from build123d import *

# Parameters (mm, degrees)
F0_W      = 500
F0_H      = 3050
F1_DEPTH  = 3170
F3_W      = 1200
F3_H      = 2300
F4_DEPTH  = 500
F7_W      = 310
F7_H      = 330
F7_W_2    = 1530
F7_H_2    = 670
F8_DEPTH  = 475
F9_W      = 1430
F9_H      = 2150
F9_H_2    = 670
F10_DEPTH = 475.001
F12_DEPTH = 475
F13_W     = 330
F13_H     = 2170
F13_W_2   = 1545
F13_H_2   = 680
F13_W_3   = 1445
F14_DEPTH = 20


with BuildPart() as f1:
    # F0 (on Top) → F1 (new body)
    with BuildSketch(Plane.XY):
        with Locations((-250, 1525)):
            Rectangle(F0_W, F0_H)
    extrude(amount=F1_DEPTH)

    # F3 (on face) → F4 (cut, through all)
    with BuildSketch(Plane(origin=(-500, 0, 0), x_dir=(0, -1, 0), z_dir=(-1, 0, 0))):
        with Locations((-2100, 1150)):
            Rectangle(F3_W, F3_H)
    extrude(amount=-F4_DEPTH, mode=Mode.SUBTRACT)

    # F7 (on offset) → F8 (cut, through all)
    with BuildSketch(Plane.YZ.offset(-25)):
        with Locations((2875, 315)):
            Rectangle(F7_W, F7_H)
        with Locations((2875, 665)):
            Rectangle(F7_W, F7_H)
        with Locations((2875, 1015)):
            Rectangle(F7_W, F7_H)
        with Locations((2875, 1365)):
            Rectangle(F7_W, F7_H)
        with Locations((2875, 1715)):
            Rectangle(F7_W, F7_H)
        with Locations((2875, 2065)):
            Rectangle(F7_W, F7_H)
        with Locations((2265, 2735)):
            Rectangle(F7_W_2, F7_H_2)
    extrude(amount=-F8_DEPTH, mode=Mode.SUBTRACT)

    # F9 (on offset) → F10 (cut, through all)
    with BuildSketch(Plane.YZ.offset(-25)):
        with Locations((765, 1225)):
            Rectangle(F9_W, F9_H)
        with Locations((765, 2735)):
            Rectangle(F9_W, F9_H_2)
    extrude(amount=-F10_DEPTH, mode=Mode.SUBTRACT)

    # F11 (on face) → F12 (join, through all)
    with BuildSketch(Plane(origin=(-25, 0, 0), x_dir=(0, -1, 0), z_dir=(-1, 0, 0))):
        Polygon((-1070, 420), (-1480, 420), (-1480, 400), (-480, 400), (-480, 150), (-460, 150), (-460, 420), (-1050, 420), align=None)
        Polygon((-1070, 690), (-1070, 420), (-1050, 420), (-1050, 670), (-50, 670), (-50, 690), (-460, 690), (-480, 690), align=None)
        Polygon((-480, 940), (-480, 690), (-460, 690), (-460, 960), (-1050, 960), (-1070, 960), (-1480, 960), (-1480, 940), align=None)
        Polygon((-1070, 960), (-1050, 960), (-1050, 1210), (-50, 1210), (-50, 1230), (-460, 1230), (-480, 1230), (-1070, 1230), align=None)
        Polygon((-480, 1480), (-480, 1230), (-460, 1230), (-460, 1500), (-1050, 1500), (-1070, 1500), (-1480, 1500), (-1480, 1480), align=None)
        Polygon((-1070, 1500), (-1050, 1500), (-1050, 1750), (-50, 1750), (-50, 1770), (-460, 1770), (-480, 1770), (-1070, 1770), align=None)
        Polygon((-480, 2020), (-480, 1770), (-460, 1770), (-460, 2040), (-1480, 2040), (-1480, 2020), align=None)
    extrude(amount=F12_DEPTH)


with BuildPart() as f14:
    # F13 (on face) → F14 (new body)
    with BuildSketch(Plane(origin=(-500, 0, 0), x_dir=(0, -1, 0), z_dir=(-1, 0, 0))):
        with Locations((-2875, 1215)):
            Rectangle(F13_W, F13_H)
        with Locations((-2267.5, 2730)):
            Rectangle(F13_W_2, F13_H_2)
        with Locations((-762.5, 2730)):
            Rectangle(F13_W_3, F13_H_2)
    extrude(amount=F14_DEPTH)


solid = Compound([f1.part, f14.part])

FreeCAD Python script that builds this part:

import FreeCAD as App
import Part
import Sketcher


def add_polygon(sketch, points):
    """Adds a closed chain of lines whose ends are joined by coincident constraints."""
    first, n = sketch.GeometryCount, len(points)
    for a, b in zip(points, points[1:] + points[:1]):
        sketch.addGeometry(Part.LineSegment(App.Vector(*a, 0), App.Vector(*b, 0)), False)
    for i in range(n):
        sketch.addConstraint(Sketcher.Constraint("Coincident", first + i, 2, first + (i + 1) % n, 1))

doc = App.newDocument("Part")
body = doc.addObject("PartDesign::Body", "Body")

# Sketch on XY plane
sketch1 = doc.addObject("Sketcher::SketchObject", "Sketch")
body.addObject(sketch1)
sketch1.AttachmentSupport = (doc.XY_Plane, [""])
sketch1.MapMode = "FlatFace"
add_polygon(sketch1, [(-500, 3050), (-500, 0), (0, 0), (0, 3050)])  # lines 0-3
sketch1.addConstraint([
    Sketcher.Constraint("Vertical", 0),
    Sketcher.Constraint("Horizontal", 1),
    Sketcher.Constraint("Vertical", 2),
    Sketcher.Constraint("Horizontal", 3),
    Sketcher.Constraint("Coincident", 1, 2, -1, 1),
    Sketcher.Constraint("DistanceX", 1, 1, 1, 2, 500.0),
    Sketcher.Constraint("DistanceY", 0, 2, 0, 1, 3050.0),
])
pad1 = doc.addObject("PartDesign::Pad", "Pad")
body.addObject(pad1)
pad1.Profile = sketch1
pad1.Length = 3170

# Sketch on YZ plane
sketch2 = doc.addObject("Sketcher::SketchObject", "Sketch001")
body.addObject(sketch2)
sketch2.AttachmentSupport = (doc.YZ_Plane, [""])
sketch2.MapMode = "FlatFace"
sketch2.AttachmentOffset = App.Placement(App.Vector(0, 0, -500), App.Rotation())
add_polygon(sketch2, [(2700, 2300), (2700, 0), (1500, 0), (1500, 2300)])  # lines 0-3
sketch2.addConstraint([
    Sketcher.Constraint("Vertical", 0),
    Sketcher.Constraint("Horizontal", 1),
    Sketcher.Constraint("Vertical", 2),
    Sketcher.Constraint("Horizontal", 3),
    Sketcher.Constraint("PointOnObject", 0, 2, -1),
    Sketcher.Constraint("DistanceX", 1, 2, 1, 1, 1200.0),
    Sketcher.Constraint("DistanceY", 0, 2, 0, 1, 2300.0),
    Sketcher.Constraint("DistanceX", -1, 1, 0, 2, 2700.0),
])
pocket1 = doc.addObject("PartDesign::Pocket", "Pocket")
body.addObject(pocket1)
pocket1.Profile = sketch2
pocket1.Type = "ThroughAll"
pocket1.Reversed = True

# Sketch on YZ plane
sketch3 = doc.addObject("Sketcher::SketchObject", "Sketch002")
body.addObject(sketch3)
sketch3.AttachmentSupport = (doc.YZ_Plane, [""])
sketch3.MapMode = "FlatFace"
sketch3.AttachmentOffset = App.Placement(App.Vector(0, 0, -25), App.Rotation())
add_polygon(sketch3, [(2720, 480), (2720, 150), (3030, 150), (3030, 480)])  # lines 0-3
add_polygon(sketch3, [(2720, 830), (2720, 500), (3030, 500), (3030, 830)])  # lines 4-7
add_polygon(sketch3, [(2720, 1180), (2720, 850), (3030, 850), (3030, 1180)])  # lines 8-11
add_polygon(sketch3, [(2720, 1530), (2720, 1200), (3030, 1200), (3030, 1530)])  # lines 12-15
add_polygon(sketch3, [(2720, 1880), (2720, 1550), (3030, 1550), (3030, 1880)])  # lines 16-19
add_polygon(sketch3, [(2720, 2230), (2720, 1900), (3030, 1900), (3030, 2230)])  # lines 20-23
add_polygon(sketch3, [(1500, 3070), (1500, 2400), (3030, 2400), (3030, 3070)])  # lines 24-27
sketch3.addConstraint([
    Sketcher.Constraint("Vertical", 0),
    Sketcher.Constraint("Horizontal", 1),
    Sketcher.Constraint("Vertical", 2),
    Sketcher.Constraint("Horizontal", 3),
    Sketcher.Constraint("Vertical", 4),
    Sketcher.Constraint("Horizontal", 5),
    Sketcher.Constraint("Vertical", 6),
    Sketcher.Constraint("Horizontal", 7),
    Sketcher.Constraint("Vertical", 8),
    Sketcher.Constraint("Horizontal", 9),
    Sketcher.Constraint("Vertical", 10),
    Sketcher.Constraint("Horizontal", 11),
    Sketcher.Constraint("Vertical", 12),
    Sketcher.Constraint("Horizontal", 13),
    Sketcher.Constraint("Vertical", 14),
    Sketcher.Constraint("Horizontal", 15),
    Sketcher.Constraint("Vertical", 16),
    Sketcher.Constraint("Horizontal", 17),
    Sketcher.Constraint("Vertical", 18),
    Sketcher.Constraint("Horizontal", 19),
    Sketcher.Constraint("Vertical", 20),
    Sketcher.Constraint("Horizontal", 21),
    Sketcher.Constraint("Vertical", 22),
    Sketcher.Constraint("Horizontal", 23),
    Sketcher.Constraint("Vertical", 24),
    Sketcher.Constraint("Horizontal", 25),
    Sketcher.Constraint("Vertical", 26),
    Sketcher.Constraint("Horizontal", 27),
    Sketcher.Constraint("Vertical", 3, 2, 4, 2),
    Sketcher.Constraint("Vertical", 2, 2, 5, 2),
    Sketcher.Constraint("Vertical", 7, 2, 8, 2),
    Sketcher.Constraint("Vertical", 6, 2, 9, 2),
    Sketcher.Constraint("Vertical", 11, 2, 12, 2),
    Sketcher.Constraint("Vertical", 10, 2, 13, 2),
    Sketcher.Constraint("Vertical", 15, 2, 16, 2),
    Sketcher.Constraint("Vertical", 14, 2, 17, 2),
    Sketcher.Constraint("Vertical", 19, 2, 20, 2),
    Sketcher.Constraint("Vertical", 18, 2, 21, 2),
    Sketcher.Constraint("Vertical", 22, 2, 25, 2),
    Sketcher.Constraint("Equal", 2, 4),
    Sketcher.Constraint("Equal", 6, 8),
    Sketcher.Constraint("Equal", 10, 12),
    Sketcher.Constraint("Equal", 14, 16),
    Sketcher.Constraint("Equal", 18, 20),
    Sketcher.Constraint("DistanceX", 1, 1, 1, 2, 310.0),
    Sketcher.Constraint("DistanceX", 25, 1, 25, 2, 1530.0),
    Sketcher.Constraint("DistanceY", 0, 2, 0, 1, 330.0),
    Sketcher.Constraint("DistanceY", 24, 2, 24, 1, 670.0),
    Sketcher.Constraint("DistanceX", -1, 1, 0, 2, 2720.0),
    Sketcher.Constraint("DistanceY", -1, 1, 0, 2, 150.0),
    Sketcher.Constraint("DistanceY", -1, 1, 4, 2, 500.0),
    Sketcher.Constraint("DistanceY", -1, 1, 8, 2, 850.0),
    Sketcher.Constraint("DistanceY", -1, 1, 12, 2, 1200.0),
    Sketcher.Constraint("DistanceY", -1, 1, 16, 2, 1550.0),
    Sketcher.Constraint("DistanceY", -1, 1, 20, 2, 1900.0),
    Sketcher.Constraint("DistanceY", -1, 1, 24, 2, 2400.0),
])
pocket2 = doc.addObject("PartDesign::Pocket", "Pocket001")
body.addObject(pocket2)
pocket2.Profile = sketch3
pocket2.Type = "ThroughAll"

# Sketch on YZ plane
sketch4 = doc.addObject("Sketcher::SketchObject", "Sketch003")
body.addObject(sketch4)
sketch4.AttachmentSupport = (doc.YZ_Plane, [""])
sketch4.MapMode = "FlatFace"
sketch4.AttachmentOffset = App.Placement(App.Vector(0, 0, -25), App.Rotation())
add_polygon(sketch4, [(50, 2300), (50, 150), (1480, 150), (1480, 2300)])  # lines 0-3
add_polygon(sketch4, [(50, 3070), (50, 2400), (1480, 2400), (1480, 3070)])  # lines 4-7
sketch4.addConstraint([
    Sketcher.Constraint("Vertical", 0),
    Sketcher.Constraint("Horizontal", 1),
    Sketcher.Constraint("Vertical", 2),
    Sketcher.Constraint("Horizontal", 3),
    Sketcher.Constraint("Vertical", 4),
    Sketcher.Constraint("Horizontal", 5),
    Sketcher.Constraint("Vertical", 6),
    Sketcher.Constraint("Horizontal", 7),
    Sketcher.Constraint("Vertical", 3, 2, 4, 2),
    Sketcher.Constraint("Vertical", 2, 2, 5, 2),
    Sketcher.Constraint("DistanceX", 1, 1, 1, 2, 1430.0),
    Sketcher.Constraint("DistanceY", 0, 2, 0, 1, 2150.0),
    Sketcher.Constraint("DistanceY", 4, 2, 4, 1, 670.0),
    Sketcher.Constraint("DistanceX", -1, 1, 0, 2, 50.0),
    Sketcher.Constraint("DistanceY", -1, 1, 0, 2, 150.0),
    Sketcher.Constraint("DistanceY", -1, 1, 4, 2, 2400.0),
])
pocket3 = doc.addObject("PartDesign::Pocket", "Pocket002")
body.addObject(pocket3)
pocket3.Profile = sketch4
pocket3.Type = "ThroughAll"

# Sketch on YZ plane
sketch5 = doc.addObject("Sketcher::SketchObject", "Sketch004")
body.addObject(sketch5)
sketch5.AttachmentSupport = (doc.YZ_Plane, [""])
sketch5.MapMode = "FlatFace"
sketch5.AttachmentOffset = App.Placement(App.Vector(0, 0, -25), App.Rotation())
add_polygon(sketch5, [(1480, 420), (1480, 400), (480, 400), (480, 150), (460, 150), (460, 420), (1050, 420), (1050, 670), (50, 670), (50, 690), (460, 690), (460, 960), (1050, 960), (1050, 1210), (50, 1210), (50, 1230), (460, 1230), (460, 1500), (1050, 1500), (1050, 1750), (50, 1750), (50, 1770), (460, 1770), (460, 2040), (1480, 2040), (1480, 2020), (480, 2020), (480, 1770), (1070, 1770), (1070, 1500), (1480, 1500), (1480, 1480), (480, 1480), (480, 1230), (1070, 1230), (1070, 960), (1480, 960), (1480, 940), (480, 940), (480, 690), (1070, 690), (1070, 420)])  # lines 0-41
sketch5.addConstraint([
    Sketcher.Constraint("Vertical", 0),
    Sketcher.Constraint("Horizontal", 1),
    Sketcher.Constraint("Vertical", 2),
    Sketcher.Constraint("Horizontal", 3),
    Sketcher.Constraint("Vertical", 4),
    Sketcher.Constraint("Horizontal", 5),
    Sketcher.Constraint("Vertical", 6),
    Sketcher.Constraint("Horizontal", 7),
    Sketcher.Constraint("Vertical", 8),
    Sketcher.Constraint("Horizontal", 9),
    Sketcher.Constraint("Vertical", 10),
    Sketcher.Constraint("Horizontal", 11),
    Sketcher.Constraint("Vertical", 12),
    Sketcher.Constraint("Horizontal", 13),
    Sketcher.Constraint("Vertical", 14),
    Sketcher.Constraint("Horizontal", 15),
    Sketcher.Constraint("Vertical", 16),
    Sketcher.Constraint("Horizontal", 17),
    Sketcher.Constraint("Vertical", 18),
    Sketcher.Constraint("Horizontal", 19),
    Sketcher.Constraint("Vertical", 20),
    Sketcher.Constraint("Horizontal", 21),
    Sketcher.Constraint("Vertical", 22),
    Sketcher.Constraint("Horizontal", 23),
    Sketcher.Constraint("Vertical", 24),
    Sketcher.Constraint("Horizontal", 25),
    Sketcher.Constraint("Vertical", 26),
    Sketcher.Constraint("Horizontal", 27),
    Sketcher.Constraint("Vertical", 28),
    Sketcher.Constraint("Horizontal", 29),
    Sketcher.Constraint("Vertical", 30),
    Sketcher.Constraint("Horizontal", 31),
    Sketcher.Constraint("Vertical", 32),
    Sketcher.Constraint("Horizontal", 33),
    Sketcher.Constraint("Vertical", 34),
    Sketcher.Constraint("Horizontal", 35),
    Sketcher.Constraint("Vertical", 36),
    Sketcher.Constraint("Horizontal", 37),
    Sketcher.Constraint("Vertical", 38),
    Sketcher.Constraint("Horizontal", 39),
    Sketcher.Constraint("Vertical", 40),
    Sketcher.Constraint("Horizontal", 41),
    Sketcher.Constraint("Horizontal", 21, 2, 26, 2),
    Sketcher.Constraint("Horizontal", 17, 2, 28, 2),
    Sketcher.Constraint("Horizontal", 15, 2, 32, 2),
    Sketcher.Constraint("Horizontal", 11, 2, 34, 2),
    Sketcher.Constraint("Horizontal", 9, 2, 38, 2),
    Sketcher.Constraint("Horizontal", 5, 2, 40, 2),
    Sketcher.Constraint("Vertical", 4, 2, 9, 2),
    Sketcher.Constraint("Vertical", 6, 2, 11, 2),
    Sketcher.Constraint("Vertical", 8, 2, 13, 2),
    Sketcher.Constraint("Vertical", 10, 2, 15, 2),
    Sketcher.Constraint("Vertical", 12, 2, 17, 2),
    Sketcher.Constraint("Vertical", 14, 2, 19, 2),
    Sketcher.Constraint("Vertical", 16, 2, 21, 2),
    Sketcher.Constraint("Vertical", 0, 2, 23, 2),
    Sketcher.Constraint("Vertical", 2, 2, 25, 2),
    Sketcher.Constraint("Vertical", 24, 2, 29, 2),
    Sketcher.Constraint("Vertical", 26, 2, 31, 2),
    Sketcher.Constraint("Vertical", 28, 2, 33, 2),
    Sketcher.Constraint("Vertical", 30, 2, 35, 2),
    Sketcher.Constraint("Vertical", 32, 2, 37, 2),
    Sketcher.Constraint("Vertical", 34, 2, 39, 2),
    Sketcher.Constraint("Equal", 1, 7),
    Sketcher.Constraint("Equal", 17, 27),
    Sketcher.Constraint("Equal", 3, 0),
    Sketcher.Constraint("Equal", 2, 6),
    Sketcher.Constraint("Equal", 0, 8),
    Sketcher.Constraint("Equal", 4, 10),
    Sketcher.Constraint("Equal", 6, 12),
    Sketcher.Constraint("Equal", 8, 14),
    Sketcher.Constraint("Equal", 10, 16),
    Sketcher.Constraint("Equal", 12, 18),
    Sketcher.Constraint("Equal", 14, 20),
    Sketcher.Constraint("Equal", 16, 22),
    Sketcher.Constraint("Equal", 20, 24),
    Sketcher.Constraint("Equal", 24, 30),
    Sketcher.Constraint("Equal", 30, 36),
    Sketcher.Constraint("DistanceX", 1, 2, 1, 1, 1000.0),
    Sketcher.Constraint("DistanceX", 3, 2, 3, 1, 20.0),
    Sketcher.Constraint("DistanceX", 5, 1, 5, 2, 590.0),
    Sketcher.Constraint("DistanceY", 2, 2, 2, 1, 250.0),
    Sketcher.Constraint("DistanceX", -1, 1, 0, 2, 1480.0),
    Sketcher.Constraint("DistanceY", -1, 1, 0, 2, 400.0),
])
pad2 = doc.addObject("PartDesign::Pad", "Pad001")
body.addObject(pad2)
pad2.Profile = sketch5
pad2.Length = 475
pad2.Reversed = True
body2 = doc.addObject("PartDesign::Body", "Body001")
body2.AllowCompound = True

# Sketch on YZ plane
sketch6 = doc.addObject("Sketcher::SketchObject", "Sketch005")
body2.addObject(sketch6)
sketch6.AttachmentSupport = (doc.getObject("YZ_Plane001"), [""])
sketch6.MapMode = "FlatFace"
sketch6.AttachmentOffset = App.Placement(App.Vector(0, 0, -500), App.Rotation())
add_polygon(sketch6, [(3040, 2300), (3040, 130), (2710, 130), (2710, 2300)])  # lines 0-3
add_polygon(sketch6, [(3040, 3070), (3040, 2390), (1495, 2390), (1495, 3070)])  # lines 4-7
add_polygon(sketch6, [(1485, 3070), (1485, 2390), (40, 2390), (40, 3070)])  # lines 8-11
sketch6.addConstraint([
    Sketcher.Constraint("Vertical", 0),
    Sketcher.Constraint("Horizontal", 1),
    Sketcher.Constraint("Vertical", 2),
    Sketcher.Constraint("Horizontal", 3),
    Sketcher.Constraint("Vertical", 4),
    Sketcher.Constraint("Horizontal", 5),
    Sketcher.Constraint("Vertical", 6),
    Sketcher.Constraint("Horizontal", 7),
    Sketcher.Constraint("Vertical", 8),
    Sketcher.Constraint("Horizontal", 9),
    Sketcher.Constraint("Vertical", 10),
    Sketcher.Constraint("Horizontal", 11),
    Sketcher.Constraint("Horizontal", 5, 2, 8, 2),
    Sketcher.Constraint("Horizontal", 7, 2, 10, 2),
    Sketcher.Constraint("Vertical", 3, 2, 4, 2),
    Sketcher.Constraint("DistanceX", 1, 2, 1, 1, 330.0),
    Sketcher.Constraint("DistanceX", 5, 2, 5, 1, 1545.0),
    Sketcher.Constraint("DistanceX", 9, 2, 9, 1, 1445.0),
    Sketcher.Constraint("DistanceY", 0, 2, 0, 1, 2170.0),
    Sketcher.Constraint("DistanceY", 4, 2, 4, 1, 680.0),
    Sketcher.Constraint("DistanceX", -1, 1, 0, 2, 3040.0),
    Sketcher.Constraint("DistanceY", -1, 1, 0, 2, 130.0),
    Sketcher.Constraint("DistanceY", -1, 1, 4, 2, 2390.0),
    Sketcher.Constraint("DistanceX", -1, 1, 8, 2, 1485.0),
])
pad3 = doc.addObject("PartDesign::Pad", "Pad002")
body2.addObject(pad3)
pad3.Profile = sketch6
pad3.Length = 20
pad3.Reversed = True

doc.recompute()
